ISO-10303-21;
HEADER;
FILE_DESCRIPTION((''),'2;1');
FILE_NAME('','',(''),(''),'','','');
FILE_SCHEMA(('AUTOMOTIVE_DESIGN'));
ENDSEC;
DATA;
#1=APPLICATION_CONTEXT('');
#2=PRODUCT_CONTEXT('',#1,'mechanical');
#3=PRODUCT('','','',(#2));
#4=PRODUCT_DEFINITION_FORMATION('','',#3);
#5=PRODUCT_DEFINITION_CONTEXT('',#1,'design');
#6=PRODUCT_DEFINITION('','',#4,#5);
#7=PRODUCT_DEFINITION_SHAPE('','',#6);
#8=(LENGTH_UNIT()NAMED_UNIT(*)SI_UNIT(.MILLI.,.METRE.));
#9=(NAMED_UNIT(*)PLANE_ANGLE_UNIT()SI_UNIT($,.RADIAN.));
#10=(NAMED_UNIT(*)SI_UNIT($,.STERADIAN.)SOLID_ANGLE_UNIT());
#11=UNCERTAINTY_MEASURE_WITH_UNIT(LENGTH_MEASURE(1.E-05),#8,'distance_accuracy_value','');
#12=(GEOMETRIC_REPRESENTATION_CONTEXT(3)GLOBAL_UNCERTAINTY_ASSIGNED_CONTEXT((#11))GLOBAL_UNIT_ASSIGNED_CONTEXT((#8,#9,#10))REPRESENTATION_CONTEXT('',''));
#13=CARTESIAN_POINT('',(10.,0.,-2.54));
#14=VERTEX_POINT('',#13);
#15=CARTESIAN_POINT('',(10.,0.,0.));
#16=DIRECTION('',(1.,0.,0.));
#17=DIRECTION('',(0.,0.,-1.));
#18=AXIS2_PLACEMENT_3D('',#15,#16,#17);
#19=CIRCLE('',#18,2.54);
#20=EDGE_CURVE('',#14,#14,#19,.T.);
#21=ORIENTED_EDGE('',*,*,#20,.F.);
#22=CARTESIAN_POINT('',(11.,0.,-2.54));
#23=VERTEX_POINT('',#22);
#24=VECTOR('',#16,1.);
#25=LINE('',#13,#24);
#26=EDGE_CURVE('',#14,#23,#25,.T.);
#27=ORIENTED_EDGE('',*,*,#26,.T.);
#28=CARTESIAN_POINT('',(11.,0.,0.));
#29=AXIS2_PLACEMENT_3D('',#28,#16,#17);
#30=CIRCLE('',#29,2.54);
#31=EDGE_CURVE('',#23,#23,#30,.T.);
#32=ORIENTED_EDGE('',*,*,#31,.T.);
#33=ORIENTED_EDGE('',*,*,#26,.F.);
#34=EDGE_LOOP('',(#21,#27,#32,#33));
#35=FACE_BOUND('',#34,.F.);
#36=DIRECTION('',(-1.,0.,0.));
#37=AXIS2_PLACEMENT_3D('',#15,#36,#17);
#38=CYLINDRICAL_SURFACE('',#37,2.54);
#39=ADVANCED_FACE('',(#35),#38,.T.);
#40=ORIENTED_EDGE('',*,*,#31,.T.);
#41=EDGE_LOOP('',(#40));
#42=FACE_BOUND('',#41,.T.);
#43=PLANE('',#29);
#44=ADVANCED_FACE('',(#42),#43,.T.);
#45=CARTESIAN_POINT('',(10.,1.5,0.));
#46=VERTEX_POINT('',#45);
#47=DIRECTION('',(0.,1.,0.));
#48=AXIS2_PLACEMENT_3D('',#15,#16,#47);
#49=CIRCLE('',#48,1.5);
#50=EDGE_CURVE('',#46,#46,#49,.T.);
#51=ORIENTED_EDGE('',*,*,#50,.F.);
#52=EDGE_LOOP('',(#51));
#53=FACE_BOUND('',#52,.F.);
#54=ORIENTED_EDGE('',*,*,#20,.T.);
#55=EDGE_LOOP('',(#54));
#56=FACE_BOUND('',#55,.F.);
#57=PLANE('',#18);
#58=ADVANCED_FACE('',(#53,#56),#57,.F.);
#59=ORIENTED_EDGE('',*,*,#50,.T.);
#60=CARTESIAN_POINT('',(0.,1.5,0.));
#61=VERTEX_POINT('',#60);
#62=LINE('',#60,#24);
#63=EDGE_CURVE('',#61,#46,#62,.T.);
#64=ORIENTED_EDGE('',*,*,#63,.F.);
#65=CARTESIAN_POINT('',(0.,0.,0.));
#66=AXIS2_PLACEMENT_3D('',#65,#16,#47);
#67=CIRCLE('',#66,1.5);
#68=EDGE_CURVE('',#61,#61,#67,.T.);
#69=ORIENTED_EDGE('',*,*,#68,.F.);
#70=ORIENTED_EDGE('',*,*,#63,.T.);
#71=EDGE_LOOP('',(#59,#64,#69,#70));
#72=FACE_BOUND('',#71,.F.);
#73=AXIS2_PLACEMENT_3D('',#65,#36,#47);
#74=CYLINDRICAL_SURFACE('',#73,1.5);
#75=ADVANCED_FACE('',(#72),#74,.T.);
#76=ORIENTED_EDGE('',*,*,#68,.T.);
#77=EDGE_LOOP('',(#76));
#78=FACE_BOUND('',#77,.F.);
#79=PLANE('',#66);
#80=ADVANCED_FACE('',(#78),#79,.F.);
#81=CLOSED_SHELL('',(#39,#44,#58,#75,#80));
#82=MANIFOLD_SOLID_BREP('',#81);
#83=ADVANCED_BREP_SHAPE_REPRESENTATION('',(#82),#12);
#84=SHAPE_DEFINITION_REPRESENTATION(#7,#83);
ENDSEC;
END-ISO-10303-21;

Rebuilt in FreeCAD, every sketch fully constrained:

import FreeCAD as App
import Part
import Sketcher
from FreeCAD import Vector
Q = App.Units.Quantity

doc = App.newDocument("Part")
params = doc.addObject("Spreadsheet::Sheet", "Params")
for row, (alias, value) in enumerate([
    ("sketch1_diameter", "3 mm"),
    ("pad1_length", "10 mm"),
    ("sketch2_diameter", "5.08 mm"),
    ("pad2_length", "1 mm"),
], start=1):
    params.set(f"A{row}", alias)
    params.set(f"B{row}", "=" + value)
    params.setAlias(f"B{row}", alias)

body = doc.addObject("PartDesign::Body", "Body")

sketch1 = body.newObject("Sketcher::SketchObject", "Sketch")
sketch1.AttachmentSupport = (doc.getObject("YZ_Plane"), [""])
sketch1.MapMode = "FlatFace"
sketch1.addGeometry(Part.Circle(Vector(0, 0, 0), Vector(0, 0, 1), 1.5), False)
sketch1.addConstraint([
    Sketcher.Constraint("Coincident", 0, 3, -1, 1),
    Sketcher.Constraint("Diameter", 0, Q("3 mm")),
])
sketch1.setExpression("Constraints[1]", "Params.sketch1_diameter")
pad1 = body.newObject("PartDesign::Pad", "Pad")
pad1.Profile = sketch1
pad1.setExpression("Length", "Params.pad1_length")

sketch2 = body.newObject("Sketcher::SketchObject", "Sketch001")
sketch2.AttachmentSupport = (doc.getObject("YZ_Plane"), [""])
sketch2.MapMode = "FlatFace"
sketch2.AttachmentOffset = App.Placement(Vector(0, 0, 10), App.Rotation())
sketch2.addGeometry(Part.Circle(Vector(0, 0, 0), Vector(0, 0, 1), 2.5), False)
sketch2.addConstraint([
    Sketcher.Constraint("Coincident", 0, 3, -1, 1),
    Sketcher.Constraint("Diameter", 0, Q("5.08 mm")),
])
sketch2.setExpression("Constraints[1]", "Params.sketch2_diameter")
pad2 = body.newObject("PartDesign::Pad", "Pad001")
pad2.Profile = sketch2
pad2.setExpression("Length", "Params.pad2_length")

doc.recompute()
